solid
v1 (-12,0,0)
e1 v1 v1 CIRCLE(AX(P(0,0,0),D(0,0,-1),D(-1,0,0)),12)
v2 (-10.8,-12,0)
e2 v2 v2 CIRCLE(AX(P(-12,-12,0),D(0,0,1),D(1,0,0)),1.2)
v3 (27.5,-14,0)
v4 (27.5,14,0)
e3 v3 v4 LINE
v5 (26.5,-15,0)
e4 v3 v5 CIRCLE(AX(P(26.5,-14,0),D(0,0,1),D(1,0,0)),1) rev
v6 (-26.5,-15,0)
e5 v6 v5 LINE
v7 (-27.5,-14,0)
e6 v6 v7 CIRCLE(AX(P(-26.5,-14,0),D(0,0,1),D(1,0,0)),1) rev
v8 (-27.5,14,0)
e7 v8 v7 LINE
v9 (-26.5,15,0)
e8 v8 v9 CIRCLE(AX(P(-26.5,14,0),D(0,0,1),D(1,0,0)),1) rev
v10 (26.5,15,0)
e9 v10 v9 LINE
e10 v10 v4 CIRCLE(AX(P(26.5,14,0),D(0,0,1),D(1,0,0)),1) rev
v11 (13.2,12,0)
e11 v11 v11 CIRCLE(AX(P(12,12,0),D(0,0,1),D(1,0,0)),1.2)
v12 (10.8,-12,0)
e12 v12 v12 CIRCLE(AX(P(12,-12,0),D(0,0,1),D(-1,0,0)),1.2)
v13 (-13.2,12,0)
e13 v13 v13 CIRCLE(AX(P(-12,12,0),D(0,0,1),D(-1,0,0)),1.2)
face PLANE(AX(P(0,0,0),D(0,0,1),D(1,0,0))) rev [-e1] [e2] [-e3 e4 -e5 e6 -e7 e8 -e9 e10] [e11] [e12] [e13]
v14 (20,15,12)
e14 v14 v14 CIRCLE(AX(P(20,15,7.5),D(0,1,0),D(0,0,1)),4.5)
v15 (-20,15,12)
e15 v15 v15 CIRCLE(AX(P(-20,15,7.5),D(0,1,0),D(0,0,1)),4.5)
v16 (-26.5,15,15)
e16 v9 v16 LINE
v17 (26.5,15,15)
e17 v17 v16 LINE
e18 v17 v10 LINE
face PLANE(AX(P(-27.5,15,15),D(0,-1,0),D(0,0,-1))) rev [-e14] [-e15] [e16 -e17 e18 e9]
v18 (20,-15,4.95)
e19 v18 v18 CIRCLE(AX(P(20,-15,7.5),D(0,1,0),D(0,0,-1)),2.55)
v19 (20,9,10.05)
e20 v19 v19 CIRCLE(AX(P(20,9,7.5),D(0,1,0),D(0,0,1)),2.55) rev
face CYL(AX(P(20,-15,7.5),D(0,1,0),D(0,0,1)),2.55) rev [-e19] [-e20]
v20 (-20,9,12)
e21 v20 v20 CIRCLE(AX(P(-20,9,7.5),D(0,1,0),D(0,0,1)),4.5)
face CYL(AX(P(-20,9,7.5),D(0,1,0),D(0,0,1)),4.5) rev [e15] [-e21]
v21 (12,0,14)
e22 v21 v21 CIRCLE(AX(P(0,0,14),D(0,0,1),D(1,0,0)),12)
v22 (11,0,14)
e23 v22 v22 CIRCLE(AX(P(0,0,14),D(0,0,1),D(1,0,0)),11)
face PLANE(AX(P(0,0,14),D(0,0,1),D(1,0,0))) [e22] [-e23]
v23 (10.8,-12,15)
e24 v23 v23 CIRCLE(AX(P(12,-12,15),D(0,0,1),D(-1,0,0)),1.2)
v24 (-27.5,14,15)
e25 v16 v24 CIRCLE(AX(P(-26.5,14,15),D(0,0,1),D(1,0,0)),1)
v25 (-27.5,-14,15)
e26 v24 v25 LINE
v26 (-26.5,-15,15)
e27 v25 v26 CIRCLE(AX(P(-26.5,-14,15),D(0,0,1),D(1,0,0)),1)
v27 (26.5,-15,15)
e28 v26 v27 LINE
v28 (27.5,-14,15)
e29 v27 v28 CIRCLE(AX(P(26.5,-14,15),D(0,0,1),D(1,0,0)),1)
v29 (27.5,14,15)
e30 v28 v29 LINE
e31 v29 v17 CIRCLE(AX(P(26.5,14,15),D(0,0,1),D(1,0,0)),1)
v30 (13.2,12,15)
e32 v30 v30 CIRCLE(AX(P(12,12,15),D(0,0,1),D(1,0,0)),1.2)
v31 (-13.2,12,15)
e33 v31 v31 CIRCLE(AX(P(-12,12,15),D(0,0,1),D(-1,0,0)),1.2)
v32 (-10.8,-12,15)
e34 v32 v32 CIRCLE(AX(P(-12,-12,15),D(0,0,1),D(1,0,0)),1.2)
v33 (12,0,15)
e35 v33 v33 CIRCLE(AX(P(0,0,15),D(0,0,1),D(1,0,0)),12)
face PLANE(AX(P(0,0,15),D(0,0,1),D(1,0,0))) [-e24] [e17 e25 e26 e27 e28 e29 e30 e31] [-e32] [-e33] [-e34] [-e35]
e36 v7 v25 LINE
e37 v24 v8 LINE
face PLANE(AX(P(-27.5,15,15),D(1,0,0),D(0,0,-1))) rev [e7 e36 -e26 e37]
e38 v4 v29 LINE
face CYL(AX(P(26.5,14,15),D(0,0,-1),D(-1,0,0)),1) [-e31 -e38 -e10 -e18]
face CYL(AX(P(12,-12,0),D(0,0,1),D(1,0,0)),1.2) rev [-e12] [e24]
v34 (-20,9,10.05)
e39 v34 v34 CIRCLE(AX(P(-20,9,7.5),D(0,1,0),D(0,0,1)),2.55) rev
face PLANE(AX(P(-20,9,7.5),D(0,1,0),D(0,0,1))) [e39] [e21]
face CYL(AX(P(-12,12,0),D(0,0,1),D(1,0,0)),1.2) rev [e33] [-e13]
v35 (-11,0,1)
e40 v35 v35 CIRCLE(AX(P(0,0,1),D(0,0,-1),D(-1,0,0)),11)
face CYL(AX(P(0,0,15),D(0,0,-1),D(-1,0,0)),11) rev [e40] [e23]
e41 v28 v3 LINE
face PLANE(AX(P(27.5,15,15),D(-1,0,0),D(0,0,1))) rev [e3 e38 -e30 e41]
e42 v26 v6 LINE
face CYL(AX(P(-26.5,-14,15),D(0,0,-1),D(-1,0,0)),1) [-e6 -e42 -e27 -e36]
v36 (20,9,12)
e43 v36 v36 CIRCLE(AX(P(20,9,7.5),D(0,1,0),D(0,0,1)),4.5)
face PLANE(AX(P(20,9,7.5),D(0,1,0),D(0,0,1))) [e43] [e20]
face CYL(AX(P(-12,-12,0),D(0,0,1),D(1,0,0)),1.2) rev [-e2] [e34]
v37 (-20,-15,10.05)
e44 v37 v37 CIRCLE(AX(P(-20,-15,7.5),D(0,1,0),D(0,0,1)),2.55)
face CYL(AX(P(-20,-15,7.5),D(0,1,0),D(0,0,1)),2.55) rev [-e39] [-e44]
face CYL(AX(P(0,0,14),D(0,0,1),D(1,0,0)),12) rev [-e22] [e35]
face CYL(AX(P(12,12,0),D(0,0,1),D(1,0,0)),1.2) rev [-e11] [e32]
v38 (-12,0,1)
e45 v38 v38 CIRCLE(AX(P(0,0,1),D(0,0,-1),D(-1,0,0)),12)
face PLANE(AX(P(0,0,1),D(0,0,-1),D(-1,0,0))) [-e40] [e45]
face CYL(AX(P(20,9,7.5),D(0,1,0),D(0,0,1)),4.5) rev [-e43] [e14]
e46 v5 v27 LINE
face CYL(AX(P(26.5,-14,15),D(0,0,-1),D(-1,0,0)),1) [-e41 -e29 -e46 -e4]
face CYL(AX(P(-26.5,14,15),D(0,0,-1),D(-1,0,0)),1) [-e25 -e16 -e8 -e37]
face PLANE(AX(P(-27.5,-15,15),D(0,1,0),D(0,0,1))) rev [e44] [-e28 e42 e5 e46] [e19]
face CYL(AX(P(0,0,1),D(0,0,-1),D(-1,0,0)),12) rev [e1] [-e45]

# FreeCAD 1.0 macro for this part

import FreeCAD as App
import Part
import Sketcher
from FreeCAD import Vector


def edges_at(feature, points):
    """Names of the edges that pass closest to the given points."""
    edges = feature.Shape.Edges
    near = lambda p: min(range(len(edges)), key=lambda i: edges[i].distToShape(Part.Vertex(*p))[0])
    return sorted({f"Edge{near(p) + 1}" for p in points})


def add_polygon(sketch, points):
    """Adds a closed chain of lines whose ends are joined by coincident constraints."""
    first, n = sketch.GeometryCount, len(points)
    for a, b in zip(points, points[1:] + points[:1]):
        sketch.addGeometry(Part.LineSegment(App.Vector(*a, 0), App.Vector(*b, 0)), False)
    for i in range(n):
        sketch.addConstraint(Sketcher.Constraint("Coincident", first + i, 2, first + (i + 1) % n, 1))

doc = App.newDocument("Part")
body = doc.addObject("PartDesign::Body", "Body")

# Sketch on XY plane
sketch1 = body.newObject("Sketcher::SketchObject", "Sketch")
sketch1.AttachmentSupport = (doc.getObject("XY_Plane"), [""])
sketch1.MapMode = "FlatFace"
add_polygon(sketch1, [(-28, 15), (-28, -15), (28, -15), (28, 15)])  # lines 0-3
sketch1.addGeometry(Part.Circle(Vector(0, 0, 0), Vector(0, 0, 1), 11), False)  # 4
sketch1.addConstraint(Sketcher.Constraint("Vertical", 0))
sketch1.addConstraint(Sketcher.Constraint("Horizontal", 1))
sketch1.addConstraint(Sketcher.Constraint("Vertical", 2))
sketch1.addConstraint(Sketcher.Constraint("Horizontal", 3))
sketch1.addConstraint(Sketcher.Constraint("Coincident", 4, 3, -1, 1))
sketch1.addConstraint(Sketcher.Constraint("Symmetric", 0, 2, 2, 2, -1, 1))
sketch1.addConstraint(Sketcher.Constraint("Diameter", 4, 22.0))
sketch1.addConstraint(Sketcher.Constraint("DistanceX", 1, 1, 1, 2, 55.0))
sketch1.addConstraint(Sketcher.Constraint("DistanceY", 0, 2, 0, 1, 30.0))
pad1 = body.newObject("PartDesign::Pad", "Pad")
pad1.Profile = sketch1
pad1.Length = 15

# Sketch on XZ plane
sketch2 = body.newObject("Sketcher::SketchObject", "Sketch001")
sketch2.AttachmentSupport = (doc.getObject("XZ_Plane"), [""])
sketch2.MapMode = "FlatFace"
sketch2.AttachmentOffset = App.Placement(Vector(0, 0, -15), App.Rotation())
sketch2.addGeometry(Part.Circle(Vector(-20, 7.5, 0), Vector(0, 0, 1), 2.5), False)
sketch2.addGeometry(Part.Circle(Vector(20, 7.5, 0), Vector(0, 0, 1), 2.5), False)
sketch2.addConstraint(Sketcher.Constraint("Equal", 0, 1))
sketch2.addConstraint(Sketcher.Constraint("Symmetric", 0, 3, 1, 3, -2))
sketch2.addConstraint(Sketcher.Constraint("Diameter", 0, 5.1))
sketch2.addConstraint(Sketcher.Constraint("DistanceX", 0, 3, -1, 1, 20.0))
sketch2.addConstraint(Sketcher.Constraint("DistanceY", -1, 1, 0, 3, 7.5))
pocket1 = body.newObject("PartDesign::Pocket", "Pocket")
pocket1.Profile = sketch2
pocket1.Type = "ThroughAll"
pocket1.Reversed = True

# Sketch on XY plane
sketch3 = body.newObject("Sketcher::SketchObject", "Sketch002")
sketch3.AttachmentSupport = (doc.getObject("XY_Plane"), [""])
sketch3.MapMode = "FlatFace"
sketch3.addGeometry(Part.Circle(Vector(0, 0, 0), Vector(0, 0, 1), 12), False)
sketch3.addConstraint(Sketcher.Constraint("Coincident", 0, 3, -1, 1))
sketch3.addConstraint(Sketcher.Constraint("Diameter", 0, 24.0))
pocket2 = body.newObject("PartDesign::Pocket", "Pocket001")
pocket2.Profile = sketch3
pocket2.Length = 1
pocket2.Reversed = True

# Sketch on XY plane
sketch4 = body.newObject("Sketcher::SketchObject", "Sketch003")
sketch4.AttachmentSupport = (doc.getObject("XY_Plane"), [""])
sketch4.MapMode = "FlatFace"
sketch4.AttachmentOffset = App.Placement(Vector(0, 0, 14), App.Rotation())
sketch4.addGeometry(Part.Circle(Vector(0, 0, 0), Vector(0, 0, 1), 12), False)
sketch4.addConstraint(Sketcher.Constraint("Coincident", 0, 3, -1, 1))
sketch4.addConstraint(Sketcher.Constraint("Diameter", 0, 24.0))
pocket3 = body.newObject("PartDesign::Pocket", "Pocket002")
pocket3.Profile = sketch4
pocket3.Length = 1
pocket3.Reversed = True

# Sketch on XY plane
sketch5 = body.newObject("Sketcher::SketchObject", "Sketch004")
sketch5.AttachmentSupport = (doc.getObject("XY_Plane"), [""])
sketch5.MapMode = "FlatFace"
sketch5.AttachmentOffset = App.Placement(Vector(0, 0, 15), App.Rotation())
sketch5.addGeometry(Part.Circle(Vector(12, 12, 0), Vector(0, 0, 1), 1.2), False)
sketch5.addGeometry(Part.Circle(Vector(-12, 12, 0), Vector(0, 0, 1), 1.2), False)
sketch5.addGeometry(Part.Circle(Vector(-12, -12, 0), Vector(0, 0, 1), 1.2), False)
sketch5.addGeometry(Part.Circle(Vector(12, -12, 0), Vector(0, 0, 1), 1.2), False)
sketch5.addConstraint(Sketcher.Constraint("Equal", 0, 1))
sketch5.addConstraint(Sketcher.Constraint("Equal", 1, 2))
sketch5.addConstraint(Sketcher.Constraint("Equal", 2, 3))
sketch5.addConstraint(Sketcher.Constraint("Symmetric", 0, 3, 2, 3, -1, 1))
sketch5.addConstraint(Sketcher.Constraint("Symmetric", 1, 3, 3, 3, -1, 1))
sketch5.addConstraint(Sketcher.Constraint("Symmetric", 0, 3, 1, 3, -2))
sketch5.addConstraint(Sketcher.Constraint("Diameter", 0, 2.4))
sketch5.addConstraint(Sketcher.Constraint("DistanceX", -1, 1, 0, 3, 12.0))
sketch5.addConstraint(Sketcher.Constraint("DistanceY", -1, 1, 0, 3, 12.0))
pocket4 = body.newObject("PartDesign::Pocket", "Pocket003")
pocket4.Profile = sketch5
pocket4.Type = "ThroughAll"
doc.recompute()

fillet = body.newObject("PartDesign::Fillet", "Fillet")
fillet.Base = (pocket4, edges_at(pocket4, [
    (-27.5, 15, 7.5),
    (27.5, 15, 7.5),
    (27.5, -15, 7.5),
    (-27.5, -15, 7.5),
]))
fillet.Radius = 1

# Sketch on XZ plane
sketch6 = body.newObject("Sketcher::SketchObject", "Sketch005")
sketch6.AttachmentSupport = (doc.getObject("XZ_Plane"), [""])
sketch6.MapMode = "FlatFace"
sketch6.AttachmentOffset = App.Placement(Vector(0, 0, -15), App.Rotation())
sketch6.addGeometry(Part.Circle(Vector(-20, 7.5, 0), Vector(0, 0, 1), 4.5), False)
sketch6.addGeometry(Part.Circle(Vector(20, 7.5, 0), Vector(0, 0, 1), 4.5), False)
sketch6.addConstraint(Sketcher.Constraint("Equal", 0, 1))
sketch6.addConstraint(Sketcher.Constraint("Symmetric", 0, 3, 1, 3, -2))
sketch6.addConstraint(Sketcher.Constraint("Diameter", 0, 9.0))
sketch6.addConstraint(Sketcher.Constraint("DistanceX", 0, 3, -1, 1, 20.0))
sketch6.addConstraint(Sketcher.Constraint("DistanceY", -1, 1, 0, 3, 7.5))
pocket5 = body.newObject("PartDesign::Pocket", "Pocket004")
pocket5.Profile = sketch6
pocket5.Length = 6
pocket5.Reversed = True

doc.recompute()
